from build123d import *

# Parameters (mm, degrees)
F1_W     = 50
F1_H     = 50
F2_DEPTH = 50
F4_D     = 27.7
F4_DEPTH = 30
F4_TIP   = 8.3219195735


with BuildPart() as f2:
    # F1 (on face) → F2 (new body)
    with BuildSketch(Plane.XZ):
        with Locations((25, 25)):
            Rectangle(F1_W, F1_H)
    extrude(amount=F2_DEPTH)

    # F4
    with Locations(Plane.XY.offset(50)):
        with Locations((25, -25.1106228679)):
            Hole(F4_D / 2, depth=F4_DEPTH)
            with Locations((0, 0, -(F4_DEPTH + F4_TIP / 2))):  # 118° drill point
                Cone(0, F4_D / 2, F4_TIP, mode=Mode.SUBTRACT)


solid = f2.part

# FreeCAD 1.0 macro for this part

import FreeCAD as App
import Part
import Sketcher
from FreeCAD import Vector


def add_polygon(sketch, points):
    """Adds a closed chain of lines whose ends are joined by coincident constraints."""
    first, n = sketch.GeometryCount, len(points)
    for a, b in zip(points, points[1:] + points[:1]):
        sketch.addGeometry(Part.LineSegment(App.Vector(*a, 0), App.Vector(*b, 0)), False)
    for i in range(n):
        sketch.addConstraint(Sketcher.Constraint("Coincident", first + i, 2, first + (i + 1) % n, 1))

doc = App.newDocument("Part")
body = doc.addObject("PartDesign::Body", "Body")

sketch1 = body.newObject("Sketcher::SketchObject", "Sketch")
sketch1.AttachmentSupport = (doc.getObject("XZ_Plane"), [""])
sketch1.MapMode = "FlatFace"
add_polygon(sketch1, [(0, 50), (0, 0), (50, 0), (50, 50)])
sketch1.addConstraint([
    Sketcher.Constraint("Vertical", 0),
    Sketcher.Constraint("Horizontal", 1),
    Sketcher.Constraint("Vertical", 2),
    Sketcher.Constraint("Horizontal", 3),
    Sketcher.Constraint("Coincident", 0, 2, -1, 1),
    Sketcher.Constraint("Equal", 3, 0),
    Sketcher.Constraint("DistanceX", 1, 1, 1, 2, 50.0),
])
pad1 = body.newObject("PartDesign::Pad", "Pad")
pad1.Profile = sketch1
pad1.Length = 50

sketch2 = body.newObject("Sketcher::SketchObject", "Sketch001")
sketch2.AttachmentSupport = (doc.getObject("XY_Plane"), [""])
sketch2.MapMode = "FlatFace"
sketch2.AttachmentOffset = App.Placement(Vector(0, 0, 50), App.Rotation())
sketch2.addGeometry(Part.Circle(Vector(25, -25, 0), Vector(0, 0, 1), 14), False)
sketch2.addConstraint([
    Sketcher.Constraint("Diameter", 0, 27.7),
    Sketcher.Constraint("DistanceX", -1, 1, 0, 3, 25.0),
    Sketcher.Constraint("DistanceY", 0, 3, -1, 1, 25.110623),
])
doc.recompute()
hole = body.newObject("PartDesign::Hole", "Hole")
hole.Profile = sketch2
hole.ThreadType = "None"
hole.Diameter = 27.7
hole.DepthType = "Dimension"
hole.Depth = 30
hole.DrillPoint = "Angled"
hole.DrillPointAngle = 118

doc.recompute()
